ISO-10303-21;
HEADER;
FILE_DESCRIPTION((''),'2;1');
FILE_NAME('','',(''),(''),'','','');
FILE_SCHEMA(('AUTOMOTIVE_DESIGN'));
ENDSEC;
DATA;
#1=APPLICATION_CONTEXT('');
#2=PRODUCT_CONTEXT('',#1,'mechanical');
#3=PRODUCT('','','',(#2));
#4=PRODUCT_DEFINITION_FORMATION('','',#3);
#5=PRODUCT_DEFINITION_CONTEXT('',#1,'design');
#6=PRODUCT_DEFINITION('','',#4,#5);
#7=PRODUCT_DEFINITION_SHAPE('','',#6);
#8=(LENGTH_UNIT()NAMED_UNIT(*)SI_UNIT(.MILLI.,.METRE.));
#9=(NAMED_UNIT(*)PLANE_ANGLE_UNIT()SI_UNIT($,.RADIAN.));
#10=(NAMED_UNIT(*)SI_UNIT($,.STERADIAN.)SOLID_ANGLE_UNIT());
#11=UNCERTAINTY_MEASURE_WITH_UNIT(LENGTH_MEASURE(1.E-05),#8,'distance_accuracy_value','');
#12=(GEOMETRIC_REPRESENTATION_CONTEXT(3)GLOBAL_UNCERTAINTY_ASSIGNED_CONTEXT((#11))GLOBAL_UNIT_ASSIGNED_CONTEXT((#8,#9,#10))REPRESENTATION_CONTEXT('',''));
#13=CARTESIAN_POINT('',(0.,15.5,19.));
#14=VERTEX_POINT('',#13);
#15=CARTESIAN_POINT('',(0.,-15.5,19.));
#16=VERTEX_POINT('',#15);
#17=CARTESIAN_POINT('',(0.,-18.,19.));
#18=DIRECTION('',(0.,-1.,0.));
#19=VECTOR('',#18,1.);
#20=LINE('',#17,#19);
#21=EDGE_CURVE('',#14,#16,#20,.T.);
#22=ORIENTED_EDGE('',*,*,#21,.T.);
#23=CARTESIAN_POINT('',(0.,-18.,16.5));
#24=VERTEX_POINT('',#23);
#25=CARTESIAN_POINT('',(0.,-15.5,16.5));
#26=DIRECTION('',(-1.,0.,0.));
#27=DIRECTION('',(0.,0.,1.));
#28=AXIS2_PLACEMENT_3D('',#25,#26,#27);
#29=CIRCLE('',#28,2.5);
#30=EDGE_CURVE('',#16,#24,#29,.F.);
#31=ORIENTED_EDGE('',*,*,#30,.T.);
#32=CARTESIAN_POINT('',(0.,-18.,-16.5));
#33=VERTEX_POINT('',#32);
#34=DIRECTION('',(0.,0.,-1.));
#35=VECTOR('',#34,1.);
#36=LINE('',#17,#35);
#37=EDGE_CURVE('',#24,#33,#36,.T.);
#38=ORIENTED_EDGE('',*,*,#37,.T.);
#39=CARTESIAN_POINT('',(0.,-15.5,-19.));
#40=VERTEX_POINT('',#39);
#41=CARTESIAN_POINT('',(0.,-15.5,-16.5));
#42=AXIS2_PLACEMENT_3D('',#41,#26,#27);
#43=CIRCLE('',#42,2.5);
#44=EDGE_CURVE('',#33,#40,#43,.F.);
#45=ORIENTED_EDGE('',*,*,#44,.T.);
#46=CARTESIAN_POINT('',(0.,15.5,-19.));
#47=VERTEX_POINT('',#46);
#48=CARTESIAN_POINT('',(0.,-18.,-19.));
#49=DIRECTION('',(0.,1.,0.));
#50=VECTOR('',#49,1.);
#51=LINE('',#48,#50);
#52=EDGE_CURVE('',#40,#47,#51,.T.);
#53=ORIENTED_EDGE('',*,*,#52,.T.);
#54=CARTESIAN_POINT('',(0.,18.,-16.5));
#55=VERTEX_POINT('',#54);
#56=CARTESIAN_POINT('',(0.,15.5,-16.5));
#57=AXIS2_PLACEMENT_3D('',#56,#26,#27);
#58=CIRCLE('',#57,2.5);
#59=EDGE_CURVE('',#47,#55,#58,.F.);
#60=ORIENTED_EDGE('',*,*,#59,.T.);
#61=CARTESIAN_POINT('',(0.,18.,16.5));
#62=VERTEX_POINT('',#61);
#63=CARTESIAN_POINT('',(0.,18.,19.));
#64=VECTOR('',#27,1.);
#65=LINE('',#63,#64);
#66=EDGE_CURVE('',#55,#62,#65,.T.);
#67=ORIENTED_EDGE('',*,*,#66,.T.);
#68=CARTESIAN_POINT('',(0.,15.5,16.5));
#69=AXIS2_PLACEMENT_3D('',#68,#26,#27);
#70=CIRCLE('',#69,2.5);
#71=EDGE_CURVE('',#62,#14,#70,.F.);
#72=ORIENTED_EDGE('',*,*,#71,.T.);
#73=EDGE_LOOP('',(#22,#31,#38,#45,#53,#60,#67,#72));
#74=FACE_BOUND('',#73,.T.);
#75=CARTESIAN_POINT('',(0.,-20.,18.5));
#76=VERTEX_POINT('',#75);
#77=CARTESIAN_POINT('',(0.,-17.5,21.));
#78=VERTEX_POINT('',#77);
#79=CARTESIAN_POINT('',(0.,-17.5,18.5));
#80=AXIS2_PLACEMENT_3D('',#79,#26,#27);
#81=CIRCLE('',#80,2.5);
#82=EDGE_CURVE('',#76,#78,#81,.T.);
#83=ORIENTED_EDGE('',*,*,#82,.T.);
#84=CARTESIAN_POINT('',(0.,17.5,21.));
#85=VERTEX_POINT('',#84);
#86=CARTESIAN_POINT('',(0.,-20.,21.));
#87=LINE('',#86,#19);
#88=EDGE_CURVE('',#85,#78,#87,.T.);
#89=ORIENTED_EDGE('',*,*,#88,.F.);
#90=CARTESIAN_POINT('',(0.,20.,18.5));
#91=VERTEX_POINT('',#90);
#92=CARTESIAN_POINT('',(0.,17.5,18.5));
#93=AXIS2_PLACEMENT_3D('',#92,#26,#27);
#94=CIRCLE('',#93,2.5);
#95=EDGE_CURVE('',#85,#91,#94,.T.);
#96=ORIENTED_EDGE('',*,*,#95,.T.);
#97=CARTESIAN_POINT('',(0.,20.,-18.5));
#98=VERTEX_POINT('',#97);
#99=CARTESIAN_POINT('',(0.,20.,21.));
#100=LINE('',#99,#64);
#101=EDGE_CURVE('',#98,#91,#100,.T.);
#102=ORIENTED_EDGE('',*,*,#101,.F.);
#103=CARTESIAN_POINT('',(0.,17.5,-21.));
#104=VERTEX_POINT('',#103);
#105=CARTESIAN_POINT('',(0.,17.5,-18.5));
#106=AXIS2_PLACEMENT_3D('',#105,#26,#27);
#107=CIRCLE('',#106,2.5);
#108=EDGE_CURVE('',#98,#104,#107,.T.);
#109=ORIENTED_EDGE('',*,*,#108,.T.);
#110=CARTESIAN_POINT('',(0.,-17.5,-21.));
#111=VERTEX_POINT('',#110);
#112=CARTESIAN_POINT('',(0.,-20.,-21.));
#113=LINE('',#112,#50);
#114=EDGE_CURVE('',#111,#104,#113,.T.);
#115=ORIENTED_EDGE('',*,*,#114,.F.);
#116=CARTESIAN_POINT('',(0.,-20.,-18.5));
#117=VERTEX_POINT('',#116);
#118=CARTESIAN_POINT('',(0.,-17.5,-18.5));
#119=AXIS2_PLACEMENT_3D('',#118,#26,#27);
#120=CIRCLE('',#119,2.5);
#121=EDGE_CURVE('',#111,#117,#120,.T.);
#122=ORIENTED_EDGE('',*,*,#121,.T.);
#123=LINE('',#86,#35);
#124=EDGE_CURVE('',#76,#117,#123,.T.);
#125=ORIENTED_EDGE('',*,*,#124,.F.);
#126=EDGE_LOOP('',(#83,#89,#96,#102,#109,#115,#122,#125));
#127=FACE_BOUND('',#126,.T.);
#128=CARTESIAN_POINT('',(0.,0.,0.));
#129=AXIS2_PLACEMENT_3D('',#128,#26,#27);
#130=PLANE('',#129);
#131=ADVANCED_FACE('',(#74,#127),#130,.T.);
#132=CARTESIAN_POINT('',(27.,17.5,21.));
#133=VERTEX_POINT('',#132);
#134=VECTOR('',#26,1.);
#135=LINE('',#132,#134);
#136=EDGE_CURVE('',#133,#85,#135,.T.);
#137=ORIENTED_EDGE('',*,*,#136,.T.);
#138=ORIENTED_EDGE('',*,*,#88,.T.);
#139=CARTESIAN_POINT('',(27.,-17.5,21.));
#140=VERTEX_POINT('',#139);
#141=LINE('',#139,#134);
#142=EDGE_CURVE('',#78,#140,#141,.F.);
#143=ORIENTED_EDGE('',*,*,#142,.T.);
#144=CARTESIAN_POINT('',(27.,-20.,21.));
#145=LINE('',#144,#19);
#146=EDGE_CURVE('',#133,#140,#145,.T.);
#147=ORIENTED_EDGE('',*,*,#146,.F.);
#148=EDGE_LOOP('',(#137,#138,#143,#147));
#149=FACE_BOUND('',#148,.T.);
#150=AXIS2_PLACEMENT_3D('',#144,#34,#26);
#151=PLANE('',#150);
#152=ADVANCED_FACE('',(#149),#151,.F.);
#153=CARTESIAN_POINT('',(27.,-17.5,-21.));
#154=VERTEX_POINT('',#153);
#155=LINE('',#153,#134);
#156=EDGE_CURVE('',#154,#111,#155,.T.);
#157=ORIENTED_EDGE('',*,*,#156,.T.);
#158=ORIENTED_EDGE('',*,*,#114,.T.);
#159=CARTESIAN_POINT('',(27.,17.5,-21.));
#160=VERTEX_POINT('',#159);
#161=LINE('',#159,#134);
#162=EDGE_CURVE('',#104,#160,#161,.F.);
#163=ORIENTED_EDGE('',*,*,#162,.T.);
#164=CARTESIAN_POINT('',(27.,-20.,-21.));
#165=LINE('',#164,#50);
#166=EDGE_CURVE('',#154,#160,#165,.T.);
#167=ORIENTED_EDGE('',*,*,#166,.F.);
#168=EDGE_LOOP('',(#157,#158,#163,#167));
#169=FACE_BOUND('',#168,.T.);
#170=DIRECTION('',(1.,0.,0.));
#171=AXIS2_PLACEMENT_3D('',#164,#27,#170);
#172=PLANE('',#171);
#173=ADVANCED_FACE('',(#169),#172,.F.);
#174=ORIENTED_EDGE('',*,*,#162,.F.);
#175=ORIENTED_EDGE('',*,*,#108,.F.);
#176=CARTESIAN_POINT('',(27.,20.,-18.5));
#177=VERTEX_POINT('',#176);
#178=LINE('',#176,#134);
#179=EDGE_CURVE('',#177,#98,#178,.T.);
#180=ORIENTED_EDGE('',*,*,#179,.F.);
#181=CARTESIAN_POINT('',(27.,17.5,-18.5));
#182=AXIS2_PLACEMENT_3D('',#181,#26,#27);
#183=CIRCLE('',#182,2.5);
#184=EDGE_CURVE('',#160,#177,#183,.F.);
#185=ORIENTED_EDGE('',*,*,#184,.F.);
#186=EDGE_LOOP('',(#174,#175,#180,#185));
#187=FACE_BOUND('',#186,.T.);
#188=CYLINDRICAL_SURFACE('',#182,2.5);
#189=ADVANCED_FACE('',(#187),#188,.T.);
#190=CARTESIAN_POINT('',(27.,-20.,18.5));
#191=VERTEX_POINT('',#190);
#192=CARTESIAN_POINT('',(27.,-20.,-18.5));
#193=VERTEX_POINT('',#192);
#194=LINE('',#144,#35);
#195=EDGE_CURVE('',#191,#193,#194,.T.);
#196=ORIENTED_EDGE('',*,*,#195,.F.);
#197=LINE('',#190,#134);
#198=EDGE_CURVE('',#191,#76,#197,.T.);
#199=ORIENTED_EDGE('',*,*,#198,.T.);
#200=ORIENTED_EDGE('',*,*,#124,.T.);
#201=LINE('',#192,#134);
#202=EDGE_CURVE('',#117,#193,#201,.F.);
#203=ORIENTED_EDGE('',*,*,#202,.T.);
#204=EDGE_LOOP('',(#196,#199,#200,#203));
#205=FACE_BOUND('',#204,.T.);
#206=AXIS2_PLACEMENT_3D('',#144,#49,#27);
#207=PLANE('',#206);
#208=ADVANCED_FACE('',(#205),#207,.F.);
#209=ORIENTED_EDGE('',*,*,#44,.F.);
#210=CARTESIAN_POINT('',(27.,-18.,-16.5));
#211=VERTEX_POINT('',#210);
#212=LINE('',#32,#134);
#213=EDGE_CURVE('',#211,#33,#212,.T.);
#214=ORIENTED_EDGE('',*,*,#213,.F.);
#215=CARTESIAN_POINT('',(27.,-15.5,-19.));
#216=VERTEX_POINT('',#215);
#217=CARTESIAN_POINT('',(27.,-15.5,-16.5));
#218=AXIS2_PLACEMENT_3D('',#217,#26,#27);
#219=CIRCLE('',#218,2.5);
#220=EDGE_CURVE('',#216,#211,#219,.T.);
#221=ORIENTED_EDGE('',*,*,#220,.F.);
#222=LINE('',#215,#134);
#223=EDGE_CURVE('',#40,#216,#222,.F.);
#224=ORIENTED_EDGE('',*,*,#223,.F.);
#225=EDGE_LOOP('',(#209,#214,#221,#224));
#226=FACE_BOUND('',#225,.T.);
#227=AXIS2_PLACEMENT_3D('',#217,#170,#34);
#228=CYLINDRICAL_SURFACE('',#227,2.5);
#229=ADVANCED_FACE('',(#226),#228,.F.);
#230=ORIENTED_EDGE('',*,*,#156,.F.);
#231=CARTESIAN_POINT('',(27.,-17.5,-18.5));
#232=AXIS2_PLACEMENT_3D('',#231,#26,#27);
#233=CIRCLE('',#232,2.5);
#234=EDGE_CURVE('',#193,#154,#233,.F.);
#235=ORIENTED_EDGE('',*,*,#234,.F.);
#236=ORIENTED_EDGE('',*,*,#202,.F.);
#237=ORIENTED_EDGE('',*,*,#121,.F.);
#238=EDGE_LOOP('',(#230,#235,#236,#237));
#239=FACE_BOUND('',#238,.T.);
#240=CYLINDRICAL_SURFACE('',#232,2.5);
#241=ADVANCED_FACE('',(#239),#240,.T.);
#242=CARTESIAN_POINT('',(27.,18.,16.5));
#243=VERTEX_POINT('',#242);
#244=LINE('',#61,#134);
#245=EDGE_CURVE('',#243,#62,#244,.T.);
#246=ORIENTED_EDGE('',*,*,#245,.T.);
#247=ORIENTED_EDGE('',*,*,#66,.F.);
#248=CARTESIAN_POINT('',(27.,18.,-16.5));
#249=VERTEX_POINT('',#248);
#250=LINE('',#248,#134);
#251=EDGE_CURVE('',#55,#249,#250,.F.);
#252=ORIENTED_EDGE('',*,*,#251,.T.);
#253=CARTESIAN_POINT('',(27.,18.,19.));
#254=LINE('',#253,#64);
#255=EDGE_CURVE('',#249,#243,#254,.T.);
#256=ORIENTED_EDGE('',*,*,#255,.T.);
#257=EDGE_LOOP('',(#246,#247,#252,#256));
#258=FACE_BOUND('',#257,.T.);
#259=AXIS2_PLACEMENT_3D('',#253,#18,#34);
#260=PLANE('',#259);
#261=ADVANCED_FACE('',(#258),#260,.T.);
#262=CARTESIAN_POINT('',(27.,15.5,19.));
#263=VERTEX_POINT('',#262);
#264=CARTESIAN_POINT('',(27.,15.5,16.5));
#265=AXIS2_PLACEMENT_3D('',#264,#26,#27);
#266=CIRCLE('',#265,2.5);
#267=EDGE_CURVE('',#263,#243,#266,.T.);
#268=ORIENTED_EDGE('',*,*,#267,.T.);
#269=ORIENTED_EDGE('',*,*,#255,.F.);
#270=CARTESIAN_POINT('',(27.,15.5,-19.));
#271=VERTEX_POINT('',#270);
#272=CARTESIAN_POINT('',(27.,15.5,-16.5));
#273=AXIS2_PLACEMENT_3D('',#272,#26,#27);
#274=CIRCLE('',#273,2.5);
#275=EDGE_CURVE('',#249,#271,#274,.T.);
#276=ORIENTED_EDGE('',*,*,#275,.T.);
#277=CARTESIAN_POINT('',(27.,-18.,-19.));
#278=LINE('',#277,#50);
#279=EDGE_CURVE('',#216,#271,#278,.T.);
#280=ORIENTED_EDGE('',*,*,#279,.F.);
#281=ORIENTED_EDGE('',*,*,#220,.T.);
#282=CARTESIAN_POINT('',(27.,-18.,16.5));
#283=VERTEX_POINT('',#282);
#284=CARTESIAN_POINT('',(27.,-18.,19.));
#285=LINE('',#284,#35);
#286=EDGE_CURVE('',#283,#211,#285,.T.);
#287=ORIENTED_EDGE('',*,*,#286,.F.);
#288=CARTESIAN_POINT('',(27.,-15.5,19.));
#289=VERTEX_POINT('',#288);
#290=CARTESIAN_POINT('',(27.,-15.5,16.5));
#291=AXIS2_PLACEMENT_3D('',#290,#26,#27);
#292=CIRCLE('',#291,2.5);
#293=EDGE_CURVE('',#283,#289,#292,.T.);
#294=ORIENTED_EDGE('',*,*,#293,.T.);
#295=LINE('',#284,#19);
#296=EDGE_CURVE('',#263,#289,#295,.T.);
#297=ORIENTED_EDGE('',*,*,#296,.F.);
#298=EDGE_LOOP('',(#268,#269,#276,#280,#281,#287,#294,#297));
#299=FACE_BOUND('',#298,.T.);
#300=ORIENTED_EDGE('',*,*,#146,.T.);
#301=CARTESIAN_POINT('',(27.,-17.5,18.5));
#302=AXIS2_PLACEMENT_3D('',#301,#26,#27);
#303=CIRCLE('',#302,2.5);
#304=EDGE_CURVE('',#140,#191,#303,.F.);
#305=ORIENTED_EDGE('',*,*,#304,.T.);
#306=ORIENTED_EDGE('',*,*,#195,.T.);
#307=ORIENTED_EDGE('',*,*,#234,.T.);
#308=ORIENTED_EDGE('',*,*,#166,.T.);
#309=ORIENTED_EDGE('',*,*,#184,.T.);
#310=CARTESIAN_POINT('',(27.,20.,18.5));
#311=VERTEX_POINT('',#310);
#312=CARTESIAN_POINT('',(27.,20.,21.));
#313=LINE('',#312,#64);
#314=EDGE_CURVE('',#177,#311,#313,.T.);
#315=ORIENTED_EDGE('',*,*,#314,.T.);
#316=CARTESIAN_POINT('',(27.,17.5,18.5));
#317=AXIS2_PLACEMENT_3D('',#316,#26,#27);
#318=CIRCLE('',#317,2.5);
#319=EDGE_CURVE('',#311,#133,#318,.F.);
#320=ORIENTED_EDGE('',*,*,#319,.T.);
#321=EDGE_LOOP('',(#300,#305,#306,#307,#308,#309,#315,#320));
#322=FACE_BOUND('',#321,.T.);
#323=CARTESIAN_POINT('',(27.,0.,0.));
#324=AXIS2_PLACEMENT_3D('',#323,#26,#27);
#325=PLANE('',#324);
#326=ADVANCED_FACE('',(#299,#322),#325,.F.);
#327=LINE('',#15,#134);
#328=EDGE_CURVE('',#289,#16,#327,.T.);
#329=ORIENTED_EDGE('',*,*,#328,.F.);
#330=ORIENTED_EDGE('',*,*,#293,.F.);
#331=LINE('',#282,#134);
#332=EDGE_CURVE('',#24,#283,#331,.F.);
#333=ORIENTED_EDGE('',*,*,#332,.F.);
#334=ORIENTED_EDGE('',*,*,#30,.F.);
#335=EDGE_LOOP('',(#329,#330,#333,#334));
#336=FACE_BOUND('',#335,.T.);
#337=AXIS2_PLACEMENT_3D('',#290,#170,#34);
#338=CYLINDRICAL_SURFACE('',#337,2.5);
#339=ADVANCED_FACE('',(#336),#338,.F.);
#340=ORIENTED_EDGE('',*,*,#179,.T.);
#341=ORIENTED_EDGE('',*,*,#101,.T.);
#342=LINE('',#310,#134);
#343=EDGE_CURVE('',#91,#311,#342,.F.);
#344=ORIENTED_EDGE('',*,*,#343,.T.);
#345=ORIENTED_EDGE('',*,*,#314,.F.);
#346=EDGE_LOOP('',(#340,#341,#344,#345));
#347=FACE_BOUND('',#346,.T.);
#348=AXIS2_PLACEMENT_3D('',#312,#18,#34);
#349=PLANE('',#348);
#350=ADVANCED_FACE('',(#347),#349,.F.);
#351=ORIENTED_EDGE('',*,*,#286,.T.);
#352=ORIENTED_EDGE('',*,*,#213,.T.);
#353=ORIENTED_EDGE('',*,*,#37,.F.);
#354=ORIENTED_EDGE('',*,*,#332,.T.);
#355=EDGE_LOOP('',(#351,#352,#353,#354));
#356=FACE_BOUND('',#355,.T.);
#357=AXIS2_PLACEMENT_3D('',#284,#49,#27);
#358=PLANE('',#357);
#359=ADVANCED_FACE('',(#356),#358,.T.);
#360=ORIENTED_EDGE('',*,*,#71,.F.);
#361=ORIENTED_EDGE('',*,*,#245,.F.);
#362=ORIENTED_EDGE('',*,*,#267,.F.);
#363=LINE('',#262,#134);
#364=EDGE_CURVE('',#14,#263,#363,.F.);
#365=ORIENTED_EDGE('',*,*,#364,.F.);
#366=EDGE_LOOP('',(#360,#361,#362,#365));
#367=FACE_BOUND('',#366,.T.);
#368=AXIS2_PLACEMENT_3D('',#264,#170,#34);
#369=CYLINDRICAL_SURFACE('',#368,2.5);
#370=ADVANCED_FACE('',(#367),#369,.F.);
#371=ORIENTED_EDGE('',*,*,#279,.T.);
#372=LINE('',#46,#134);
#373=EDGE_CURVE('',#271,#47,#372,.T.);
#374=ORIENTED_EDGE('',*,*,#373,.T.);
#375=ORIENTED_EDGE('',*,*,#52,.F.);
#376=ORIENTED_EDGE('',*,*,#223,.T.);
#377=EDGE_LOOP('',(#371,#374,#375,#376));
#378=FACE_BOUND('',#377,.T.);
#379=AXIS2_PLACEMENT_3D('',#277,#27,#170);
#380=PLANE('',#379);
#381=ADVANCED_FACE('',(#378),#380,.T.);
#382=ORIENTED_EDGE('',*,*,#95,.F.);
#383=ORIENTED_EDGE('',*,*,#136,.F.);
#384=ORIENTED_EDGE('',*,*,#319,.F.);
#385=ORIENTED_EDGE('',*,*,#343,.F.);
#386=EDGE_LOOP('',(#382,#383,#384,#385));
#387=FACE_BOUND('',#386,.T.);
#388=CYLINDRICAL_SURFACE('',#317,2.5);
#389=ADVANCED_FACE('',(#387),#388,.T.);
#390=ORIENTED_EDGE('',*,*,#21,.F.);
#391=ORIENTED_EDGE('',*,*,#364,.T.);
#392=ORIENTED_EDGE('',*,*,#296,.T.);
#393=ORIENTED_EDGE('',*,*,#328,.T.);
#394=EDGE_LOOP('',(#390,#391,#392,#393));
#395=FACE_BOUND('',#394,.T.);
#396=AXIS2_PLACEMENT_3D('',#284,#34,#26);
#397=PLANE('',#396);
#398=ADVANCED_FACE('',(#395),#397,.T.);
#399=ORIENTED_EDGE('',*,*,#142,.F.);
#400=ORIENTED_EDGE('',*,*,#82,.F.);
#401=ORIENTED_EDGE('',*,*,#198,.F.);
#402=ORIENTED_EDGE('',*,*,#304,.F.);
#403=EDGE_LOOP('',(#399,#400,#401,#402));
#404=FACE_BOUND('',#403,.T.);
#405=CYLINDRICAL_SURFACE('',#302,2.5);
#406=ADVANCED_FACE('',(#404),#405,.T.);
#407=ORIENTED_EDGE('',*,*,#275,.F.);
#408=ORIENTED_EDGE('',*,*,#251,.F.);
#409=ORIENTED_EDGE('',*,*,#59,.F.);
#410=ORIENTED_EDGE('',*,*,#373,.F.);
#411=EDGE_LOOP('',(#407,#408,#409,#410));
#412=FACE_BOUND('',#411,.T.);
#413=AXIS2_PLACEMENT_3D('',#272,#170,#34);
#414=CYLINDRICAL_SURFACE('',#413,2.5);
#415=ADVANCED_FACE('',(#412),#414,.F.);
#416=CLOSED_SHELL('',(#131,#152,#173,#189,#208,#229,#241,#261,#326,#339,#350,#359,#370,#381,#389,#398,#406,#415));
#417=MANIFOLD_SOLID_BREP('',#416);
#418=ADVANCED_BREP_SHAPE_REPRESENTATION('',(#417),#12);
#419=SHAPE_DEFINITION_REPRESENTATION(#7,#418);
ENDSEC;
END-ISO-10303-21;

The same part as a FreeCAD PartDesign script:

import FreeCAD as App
import Part
import Sketcher

V = App.Vector


def edges_at(feature, points):
    """Names of the edges that pass closest to the given points."""
    edges = feature.Shape.Edges
    near = lambda p: min(range(len(edges)), key=lambda i: edges[i].distToShape(Part.Vertex(*p))[0])
    return sorted({f"Edge{near(p) + 1}" for p in points})


def add_polygon(sketch, points):
    """Adds a closed chain of lines whose ends are joined by coincident constraints."""
    first, n = sketch.GeometryCount, len(points)
    for a, b in zip(points, points[1:] + points[:1]):
        sketch.addGeometry(Part.LineSegment(App.Vector(*a, 0), App.Vector(*b, 0)), False)
    for i in range(n):
        sketch.addConstraint(Sketcher.Constraint("Coincident", first + i, 2, first + (i + 1) % n, 1))

doc = App.newDocument("Part")
body = doc.addObject("PartDesign::Body", "Body")

# Sketch on YZ plane
sketch1 = body.newObject("Sketcher::SketchObject", "Sketch")
sketch1.AttachmentSupport = (doc.getObject("YZ_Plane"), [""])
sketch1.MapMode = "FlatFace"
add_polygon(sketch1, [(20, 21), (-20, 21), (-20, -21), (20, -21)])  # lines 0-3
add_polygon(sketch1, [(-18, -19), (-18, 19), (18, 19), (18, -19)])  # lines 4-7
sketch1.addConstraint([
    Sketcher.Constraint("Horizontal", 0),
    Sketcher.Constraint("Vertical", 1),
    Sketcher.Constraint("Horizontal", 2),
    Sketcher.Constraint("Vertical", 3),
    Sketcher.Constraint("Vertical", 4),
    Sketcher.Constraint("Horizontal", 5),
    Sketcher.Constraint("Vertical", 6),
    Sketcher.Constraint("Horizontal", 7),
    Sketcher.Constraint("Symmetric", 0, 2, 2, 2, -1, 1),
    Sketcher.Constraint("Symmetric", 4, 2, 6, 2, -1, 1),
    Sketcher.Constraint("DistanceX", 0, 2, 0, 1, 40.0),
    Sketcher.Constraint("DistanceX", 5, 1, 5, 2, 36.0),
    Sketcher.Constraint("DistanceY", 1, 2, 1, 1, 42.0),
    Sketcher.Constraint("DistanceY", 4, 1, 4, 2, 38.0),
])
pad1 = body.newObject("PartDesign::Pad", "Pad")
pad1.Profile = sketch1
pad1.Length = 27
doc.recompute()

fillet = body.newObject("PartDesign::Fillet", "Fillet")
fillet.Base = (pad1, edges_at(pad1, [
    (13.5, -18, -19),
    (13.5, 18, -19),
    (13.5, 18, 19),
    (13.5, -18, 19),
    (13.5, 20, 21),
    (13.5, 20, -21),
    (13.5, -20, -21),
    (13.5, -20, 21),
]))
fillet.Radius = 2.5

doc.recompute()
